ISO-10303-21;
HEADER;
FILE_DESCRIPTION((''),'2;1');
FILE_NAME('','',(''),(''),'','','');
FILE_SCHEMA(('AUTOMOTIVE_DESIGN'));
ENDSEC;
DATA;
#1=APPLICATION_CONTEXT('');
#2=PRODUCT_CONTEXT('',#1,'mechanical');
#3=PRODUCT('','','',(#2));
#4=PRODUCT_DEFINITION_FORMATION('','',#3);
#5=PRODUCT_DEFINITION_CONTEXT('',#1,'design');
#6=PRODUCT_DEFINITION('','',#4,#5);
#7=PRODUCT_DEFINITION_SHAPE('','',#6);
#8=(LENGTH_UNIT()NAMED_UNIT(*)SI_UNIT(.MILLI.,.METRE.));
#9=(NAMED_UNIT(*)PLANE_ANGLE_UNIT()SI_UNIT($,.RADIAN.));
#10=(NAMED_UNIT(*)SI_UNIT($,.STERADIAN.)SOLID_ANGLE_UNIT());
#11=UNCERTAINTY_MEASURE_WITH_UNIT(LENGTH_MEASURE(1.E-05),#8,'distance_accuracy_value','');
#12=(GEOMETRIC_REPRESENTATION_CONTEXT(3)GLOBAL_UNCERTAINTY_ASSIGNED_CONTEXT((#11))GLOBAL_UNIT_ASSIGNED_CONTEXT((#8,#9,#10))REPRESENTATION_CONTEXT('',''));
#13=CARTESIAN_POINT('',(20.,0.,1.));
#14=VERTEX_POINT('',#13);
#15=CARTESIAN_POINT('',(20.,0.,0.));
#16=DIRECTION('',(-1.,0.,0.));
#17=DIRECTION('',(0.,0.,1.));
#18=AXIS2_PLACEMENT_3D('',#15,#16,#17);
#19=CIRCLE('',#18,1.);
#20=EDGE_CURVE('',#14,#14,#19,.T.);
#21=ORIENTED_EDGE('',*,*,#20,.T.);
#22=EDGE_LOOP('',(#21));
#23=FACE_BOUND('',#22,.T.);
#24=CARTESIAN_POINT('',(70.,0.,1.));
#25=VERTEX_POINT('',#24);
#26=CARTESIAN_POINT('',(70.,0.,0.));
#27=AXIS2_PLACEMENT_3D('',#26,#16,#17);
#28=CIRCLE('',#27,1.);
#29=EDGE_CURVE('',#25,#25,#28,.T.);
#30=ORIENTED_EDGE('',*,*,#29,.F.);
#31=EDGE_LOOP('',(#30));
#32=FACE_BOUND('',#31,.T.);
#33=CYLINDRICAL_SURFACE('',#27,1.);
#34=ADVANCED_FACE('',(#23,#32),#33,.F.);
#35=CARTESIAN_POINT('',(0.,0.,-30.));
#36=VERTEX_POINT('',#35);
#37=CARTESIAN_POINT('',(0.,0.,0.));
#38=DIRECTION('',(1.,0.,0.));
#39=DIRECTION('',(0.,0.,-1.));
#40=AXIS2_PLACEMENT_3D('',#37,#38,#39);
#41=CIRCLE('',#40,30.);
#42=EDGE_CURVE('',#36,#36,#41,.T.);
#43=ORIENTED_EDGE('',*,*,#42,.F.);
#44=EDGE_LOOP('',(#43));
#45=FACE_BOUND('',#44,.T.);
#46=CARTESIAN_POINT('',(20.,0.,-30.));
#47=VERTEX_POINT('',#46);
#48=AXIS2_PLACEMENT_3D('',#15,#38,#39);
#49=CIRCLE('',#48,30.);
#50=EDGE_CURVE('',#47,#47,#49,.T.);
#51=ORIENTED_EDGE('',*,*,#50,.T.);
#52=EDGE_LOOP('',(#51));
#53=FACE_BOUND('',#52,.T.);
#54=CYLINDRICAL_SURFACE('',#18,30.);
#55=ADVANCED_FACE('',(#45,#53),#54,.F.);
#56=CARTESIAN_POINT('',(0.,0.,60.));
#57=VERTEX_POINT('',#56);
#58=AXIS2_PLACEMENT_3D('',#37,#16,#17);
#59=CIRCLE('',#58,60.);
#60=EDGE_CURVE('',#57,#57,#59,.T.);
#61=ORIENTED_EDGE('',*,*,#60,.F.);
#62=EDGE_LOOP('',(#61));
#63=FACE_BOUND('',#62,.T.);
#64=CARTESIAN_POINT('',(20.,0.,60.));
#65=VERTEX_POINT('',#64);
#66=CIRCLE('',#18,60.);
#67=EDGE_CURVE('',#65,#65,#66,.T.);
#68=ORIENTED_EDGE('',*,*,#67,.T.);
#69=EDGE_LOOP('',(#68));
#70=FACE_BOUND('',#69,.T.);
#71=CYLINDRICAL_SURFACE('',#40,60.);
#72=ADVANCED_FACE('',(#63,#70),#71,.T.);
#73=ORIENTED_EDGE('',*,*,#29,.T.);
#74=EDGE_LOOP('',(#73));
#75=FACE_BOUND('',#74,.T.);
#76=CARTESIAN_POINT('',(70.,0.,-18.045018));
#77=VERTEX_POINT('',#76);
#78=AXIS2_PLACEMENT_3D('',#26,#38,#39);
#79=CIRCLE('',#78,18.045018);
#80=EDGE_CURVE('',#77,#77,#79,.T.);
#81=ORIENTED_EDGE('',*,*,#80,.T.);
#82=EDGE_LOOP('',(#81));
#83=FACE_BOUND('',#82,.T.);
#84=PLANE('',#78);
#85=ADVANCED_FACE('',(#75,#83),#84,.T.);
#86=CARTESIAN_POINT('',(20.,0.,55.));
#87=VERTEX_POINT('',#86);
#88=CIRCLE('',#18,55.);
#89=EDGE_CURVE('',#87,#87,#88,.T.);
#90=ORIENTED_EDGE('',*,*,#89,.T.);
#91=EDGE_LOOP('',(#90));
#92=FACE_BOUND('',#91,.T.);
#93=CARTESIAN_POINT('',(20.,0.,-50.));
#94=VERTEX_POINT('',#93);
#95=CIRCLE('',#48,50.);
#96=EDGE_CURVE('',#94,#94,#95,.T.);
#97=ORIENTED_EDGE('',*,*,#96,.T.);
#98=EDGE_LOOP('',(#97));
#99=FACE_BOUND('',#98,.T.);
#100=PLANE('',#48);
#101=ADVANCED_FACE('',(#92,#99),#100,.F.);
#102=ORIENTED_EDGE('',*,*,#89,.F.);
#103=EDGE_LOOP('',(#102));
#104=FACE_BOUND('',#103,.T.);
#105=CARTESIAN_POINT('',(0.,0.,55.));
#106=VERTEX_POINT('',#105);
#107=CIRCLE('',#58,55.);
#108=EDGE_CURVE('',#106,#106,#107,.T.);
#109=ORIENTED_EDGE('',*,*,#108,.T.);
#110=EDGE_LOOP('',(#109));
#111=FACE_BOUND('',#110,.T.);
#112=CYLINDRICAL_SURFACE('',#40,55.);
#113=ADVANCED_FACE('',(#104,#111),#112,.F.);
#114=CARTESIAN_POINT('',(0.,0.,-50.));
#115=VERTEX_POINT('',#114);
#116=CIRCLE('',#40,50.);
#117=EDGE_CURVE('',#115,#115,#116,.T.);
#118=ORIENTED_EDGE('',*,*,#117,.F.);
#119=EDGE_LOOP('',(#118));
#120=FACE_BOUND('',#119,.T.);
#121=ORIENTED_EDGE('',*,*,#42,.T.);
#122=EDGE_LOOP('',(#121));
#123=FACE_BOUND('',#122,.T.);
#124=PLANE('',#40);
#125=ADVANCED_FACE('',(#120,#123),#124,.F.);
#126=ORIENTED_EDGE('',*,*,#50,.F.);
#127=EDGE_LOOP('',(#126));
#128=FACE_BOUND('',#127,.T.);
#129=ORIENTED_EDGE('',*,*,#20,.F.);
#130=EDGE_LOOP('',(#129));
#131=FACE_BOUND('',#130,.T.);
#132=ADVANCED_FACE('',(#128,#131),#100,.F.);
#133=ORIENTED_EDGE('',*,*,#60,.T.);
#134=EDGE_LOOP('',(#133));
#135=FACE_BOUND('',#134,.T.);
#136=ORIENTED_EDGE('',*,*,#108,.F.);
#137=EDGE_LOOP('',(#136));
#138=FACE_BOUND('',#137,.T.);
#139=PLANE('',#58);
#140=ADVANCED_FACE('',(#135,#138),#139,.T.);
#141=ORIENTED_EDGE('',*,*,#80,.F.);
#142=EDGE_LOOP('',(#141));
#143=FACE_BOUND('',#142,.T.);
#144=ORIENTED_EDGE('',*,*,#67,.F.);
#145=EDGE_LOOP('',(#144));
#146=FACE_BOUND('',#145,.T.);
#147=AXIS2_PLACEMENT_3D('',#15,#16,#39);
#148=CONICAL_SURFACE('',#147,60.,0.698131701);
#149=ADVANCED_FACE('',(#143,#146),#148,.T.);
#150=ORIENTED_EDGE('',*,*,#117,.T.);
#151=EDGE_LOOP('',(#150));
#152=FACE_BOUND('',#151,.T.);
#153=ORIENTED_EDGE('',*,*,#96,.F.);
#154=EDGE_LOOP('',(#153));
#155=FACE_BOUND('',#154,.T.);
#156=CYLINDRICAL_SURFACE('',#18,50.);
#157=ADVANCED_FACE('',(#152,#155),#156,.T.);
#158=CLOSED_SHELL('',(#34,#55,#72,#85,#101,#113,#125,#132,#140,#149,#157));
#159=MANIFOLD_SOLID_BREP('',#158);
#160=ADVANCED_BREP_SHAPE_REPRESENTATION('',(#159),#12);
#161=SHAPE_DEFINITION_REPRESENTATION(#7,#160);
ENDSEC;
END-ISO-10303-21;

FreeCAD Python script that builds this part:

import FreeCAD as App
import Part
import Sketcher
from FreeCAD import Vector
Q = App.Units.Quantity

doc = App.newDocument("Part")
body = doc.addObject("PartDesign::Body", "Body")

# Sketch on YZ plane
sketch1 = body.newObject("Sketcher::SketchObject", "Sketch")
sketch1.AttachmentSupport = (doc.getObject("YZ_Plane"), [""])
sketch1.MapMode = "FlatFace"
sketch1.addGeometry([
    Part.Circle(Vector(0, 0, 0), Vector(0, 0, 1), 50),
    Part.Circle(Vector(0, 0, 0), Vector(0, 0, 1), 30),
], False)
sketch1.addConstraint([
    Sketcher.Constraint("Coincident", 0, 3, -1, 1),
    Sketcher.Constraint("Coincident", 1, 3, -1, 1),
    Sketcher.Constraint("Diameter", 0, Q("100 mm")),
    Sketcher.Constraint("Diameter", 1, Q("60 mm")),
])
pad1 = body.newObject("PartDesign::Pad", "Pad")
pad1.Profile = sketch1
pad1.Length = 20

# Sketch on YZ plane
sketch2 = body.newObject("Sketcher::SketchObject", "Sketch001")
sketch2.AttachmentSupport = (doc.getObject("YZ_Plane"), [""])
sketch2.MapMode = "FlatFace"
sketch2.AttachmentOffset = App.Placement(Vector(0, 0, 20), App.Rotation())
sketch2.addGeometry(Part.Circle(Vector(0, 0, 0), Vector(0, 0, 1), 60), False)
sketch2.addConstraint([
    Sketcher.Constraint("Coincident", 0, 3, -1, 1),
    Sketcher.Constraint("Diameter", 0, Q("120 mm")),
])
pad2 = body.newObject("PartDesign::Pad", "Pad001")
pad2.Profile = sketch2
pad2.Length = 50
pad2.TaperAngle = -40

# Sketch on YZ plane
sketch3 = body.newObject("Sketcher::SketchObject", "Sketch002")
sketch3.AttachmentSupport = (doc.getObject("YZ_Plane"), [""])
sketch3.MapMode = "FlatFace"
sketch3.AttachmentOffset = App.Placement(Vector(0, 0, 20), App.Rotation())
sketch3.addGeometry([
    Part.Circle(Vector(0, 0, 0), Vector(0, 0, 1), 60),
    Part.Circle(Vector(0, 0, 0), Vector(0, 0, 1), 55),
], False)
sketch3.addConstraint([
    Sketcher.Constraint("Coincident", 0, 3, -1, 1),
    Sketcher.Constraint("Coincident", 1, 3, -1, 1),
    Sketcher.Constraint("Diameter", 0, Q("120 mm")),
    Sketcher.Constraint("Diameter", 1, Q("110 mm")),
])
pad3 = body.newObject("PartDesign::Pad", "Pad002")
pad3.Profile = sketch3
pad3.Length = 20
pad3.Reversed = True

# Sketch on YZ plane
sketch4 = body.newObject("Sketcher::SketchObject", "Sketch003")
sketch4.AttachmentSupport = (doc.getObject("YZ_Plane"), [""])
sketch4.MapMode = "FlatFace"
sketch4.AttachmentOffset = App.Placement(Vector(0, 0, 20), App.Rotation())
sketch4.addGeometry(Part.Circle(Vector(0, 0, 0), Vector(0, 0, 1), 1), False)
sketch4.addConstraint([
    Sketcher.Constraint("Coincident", 0, 3, -1, 1),
    Sketcher.Constraint("Diameter", 0, Q("2 mm")),
])
pocket1 = body.newObject("PartDesign::Pocket", "Pocket")
pocket1.Profile = sketch4
pocket1.Type = "ThroughAll"
pocket1.Reversed = True

doc.recompute()
